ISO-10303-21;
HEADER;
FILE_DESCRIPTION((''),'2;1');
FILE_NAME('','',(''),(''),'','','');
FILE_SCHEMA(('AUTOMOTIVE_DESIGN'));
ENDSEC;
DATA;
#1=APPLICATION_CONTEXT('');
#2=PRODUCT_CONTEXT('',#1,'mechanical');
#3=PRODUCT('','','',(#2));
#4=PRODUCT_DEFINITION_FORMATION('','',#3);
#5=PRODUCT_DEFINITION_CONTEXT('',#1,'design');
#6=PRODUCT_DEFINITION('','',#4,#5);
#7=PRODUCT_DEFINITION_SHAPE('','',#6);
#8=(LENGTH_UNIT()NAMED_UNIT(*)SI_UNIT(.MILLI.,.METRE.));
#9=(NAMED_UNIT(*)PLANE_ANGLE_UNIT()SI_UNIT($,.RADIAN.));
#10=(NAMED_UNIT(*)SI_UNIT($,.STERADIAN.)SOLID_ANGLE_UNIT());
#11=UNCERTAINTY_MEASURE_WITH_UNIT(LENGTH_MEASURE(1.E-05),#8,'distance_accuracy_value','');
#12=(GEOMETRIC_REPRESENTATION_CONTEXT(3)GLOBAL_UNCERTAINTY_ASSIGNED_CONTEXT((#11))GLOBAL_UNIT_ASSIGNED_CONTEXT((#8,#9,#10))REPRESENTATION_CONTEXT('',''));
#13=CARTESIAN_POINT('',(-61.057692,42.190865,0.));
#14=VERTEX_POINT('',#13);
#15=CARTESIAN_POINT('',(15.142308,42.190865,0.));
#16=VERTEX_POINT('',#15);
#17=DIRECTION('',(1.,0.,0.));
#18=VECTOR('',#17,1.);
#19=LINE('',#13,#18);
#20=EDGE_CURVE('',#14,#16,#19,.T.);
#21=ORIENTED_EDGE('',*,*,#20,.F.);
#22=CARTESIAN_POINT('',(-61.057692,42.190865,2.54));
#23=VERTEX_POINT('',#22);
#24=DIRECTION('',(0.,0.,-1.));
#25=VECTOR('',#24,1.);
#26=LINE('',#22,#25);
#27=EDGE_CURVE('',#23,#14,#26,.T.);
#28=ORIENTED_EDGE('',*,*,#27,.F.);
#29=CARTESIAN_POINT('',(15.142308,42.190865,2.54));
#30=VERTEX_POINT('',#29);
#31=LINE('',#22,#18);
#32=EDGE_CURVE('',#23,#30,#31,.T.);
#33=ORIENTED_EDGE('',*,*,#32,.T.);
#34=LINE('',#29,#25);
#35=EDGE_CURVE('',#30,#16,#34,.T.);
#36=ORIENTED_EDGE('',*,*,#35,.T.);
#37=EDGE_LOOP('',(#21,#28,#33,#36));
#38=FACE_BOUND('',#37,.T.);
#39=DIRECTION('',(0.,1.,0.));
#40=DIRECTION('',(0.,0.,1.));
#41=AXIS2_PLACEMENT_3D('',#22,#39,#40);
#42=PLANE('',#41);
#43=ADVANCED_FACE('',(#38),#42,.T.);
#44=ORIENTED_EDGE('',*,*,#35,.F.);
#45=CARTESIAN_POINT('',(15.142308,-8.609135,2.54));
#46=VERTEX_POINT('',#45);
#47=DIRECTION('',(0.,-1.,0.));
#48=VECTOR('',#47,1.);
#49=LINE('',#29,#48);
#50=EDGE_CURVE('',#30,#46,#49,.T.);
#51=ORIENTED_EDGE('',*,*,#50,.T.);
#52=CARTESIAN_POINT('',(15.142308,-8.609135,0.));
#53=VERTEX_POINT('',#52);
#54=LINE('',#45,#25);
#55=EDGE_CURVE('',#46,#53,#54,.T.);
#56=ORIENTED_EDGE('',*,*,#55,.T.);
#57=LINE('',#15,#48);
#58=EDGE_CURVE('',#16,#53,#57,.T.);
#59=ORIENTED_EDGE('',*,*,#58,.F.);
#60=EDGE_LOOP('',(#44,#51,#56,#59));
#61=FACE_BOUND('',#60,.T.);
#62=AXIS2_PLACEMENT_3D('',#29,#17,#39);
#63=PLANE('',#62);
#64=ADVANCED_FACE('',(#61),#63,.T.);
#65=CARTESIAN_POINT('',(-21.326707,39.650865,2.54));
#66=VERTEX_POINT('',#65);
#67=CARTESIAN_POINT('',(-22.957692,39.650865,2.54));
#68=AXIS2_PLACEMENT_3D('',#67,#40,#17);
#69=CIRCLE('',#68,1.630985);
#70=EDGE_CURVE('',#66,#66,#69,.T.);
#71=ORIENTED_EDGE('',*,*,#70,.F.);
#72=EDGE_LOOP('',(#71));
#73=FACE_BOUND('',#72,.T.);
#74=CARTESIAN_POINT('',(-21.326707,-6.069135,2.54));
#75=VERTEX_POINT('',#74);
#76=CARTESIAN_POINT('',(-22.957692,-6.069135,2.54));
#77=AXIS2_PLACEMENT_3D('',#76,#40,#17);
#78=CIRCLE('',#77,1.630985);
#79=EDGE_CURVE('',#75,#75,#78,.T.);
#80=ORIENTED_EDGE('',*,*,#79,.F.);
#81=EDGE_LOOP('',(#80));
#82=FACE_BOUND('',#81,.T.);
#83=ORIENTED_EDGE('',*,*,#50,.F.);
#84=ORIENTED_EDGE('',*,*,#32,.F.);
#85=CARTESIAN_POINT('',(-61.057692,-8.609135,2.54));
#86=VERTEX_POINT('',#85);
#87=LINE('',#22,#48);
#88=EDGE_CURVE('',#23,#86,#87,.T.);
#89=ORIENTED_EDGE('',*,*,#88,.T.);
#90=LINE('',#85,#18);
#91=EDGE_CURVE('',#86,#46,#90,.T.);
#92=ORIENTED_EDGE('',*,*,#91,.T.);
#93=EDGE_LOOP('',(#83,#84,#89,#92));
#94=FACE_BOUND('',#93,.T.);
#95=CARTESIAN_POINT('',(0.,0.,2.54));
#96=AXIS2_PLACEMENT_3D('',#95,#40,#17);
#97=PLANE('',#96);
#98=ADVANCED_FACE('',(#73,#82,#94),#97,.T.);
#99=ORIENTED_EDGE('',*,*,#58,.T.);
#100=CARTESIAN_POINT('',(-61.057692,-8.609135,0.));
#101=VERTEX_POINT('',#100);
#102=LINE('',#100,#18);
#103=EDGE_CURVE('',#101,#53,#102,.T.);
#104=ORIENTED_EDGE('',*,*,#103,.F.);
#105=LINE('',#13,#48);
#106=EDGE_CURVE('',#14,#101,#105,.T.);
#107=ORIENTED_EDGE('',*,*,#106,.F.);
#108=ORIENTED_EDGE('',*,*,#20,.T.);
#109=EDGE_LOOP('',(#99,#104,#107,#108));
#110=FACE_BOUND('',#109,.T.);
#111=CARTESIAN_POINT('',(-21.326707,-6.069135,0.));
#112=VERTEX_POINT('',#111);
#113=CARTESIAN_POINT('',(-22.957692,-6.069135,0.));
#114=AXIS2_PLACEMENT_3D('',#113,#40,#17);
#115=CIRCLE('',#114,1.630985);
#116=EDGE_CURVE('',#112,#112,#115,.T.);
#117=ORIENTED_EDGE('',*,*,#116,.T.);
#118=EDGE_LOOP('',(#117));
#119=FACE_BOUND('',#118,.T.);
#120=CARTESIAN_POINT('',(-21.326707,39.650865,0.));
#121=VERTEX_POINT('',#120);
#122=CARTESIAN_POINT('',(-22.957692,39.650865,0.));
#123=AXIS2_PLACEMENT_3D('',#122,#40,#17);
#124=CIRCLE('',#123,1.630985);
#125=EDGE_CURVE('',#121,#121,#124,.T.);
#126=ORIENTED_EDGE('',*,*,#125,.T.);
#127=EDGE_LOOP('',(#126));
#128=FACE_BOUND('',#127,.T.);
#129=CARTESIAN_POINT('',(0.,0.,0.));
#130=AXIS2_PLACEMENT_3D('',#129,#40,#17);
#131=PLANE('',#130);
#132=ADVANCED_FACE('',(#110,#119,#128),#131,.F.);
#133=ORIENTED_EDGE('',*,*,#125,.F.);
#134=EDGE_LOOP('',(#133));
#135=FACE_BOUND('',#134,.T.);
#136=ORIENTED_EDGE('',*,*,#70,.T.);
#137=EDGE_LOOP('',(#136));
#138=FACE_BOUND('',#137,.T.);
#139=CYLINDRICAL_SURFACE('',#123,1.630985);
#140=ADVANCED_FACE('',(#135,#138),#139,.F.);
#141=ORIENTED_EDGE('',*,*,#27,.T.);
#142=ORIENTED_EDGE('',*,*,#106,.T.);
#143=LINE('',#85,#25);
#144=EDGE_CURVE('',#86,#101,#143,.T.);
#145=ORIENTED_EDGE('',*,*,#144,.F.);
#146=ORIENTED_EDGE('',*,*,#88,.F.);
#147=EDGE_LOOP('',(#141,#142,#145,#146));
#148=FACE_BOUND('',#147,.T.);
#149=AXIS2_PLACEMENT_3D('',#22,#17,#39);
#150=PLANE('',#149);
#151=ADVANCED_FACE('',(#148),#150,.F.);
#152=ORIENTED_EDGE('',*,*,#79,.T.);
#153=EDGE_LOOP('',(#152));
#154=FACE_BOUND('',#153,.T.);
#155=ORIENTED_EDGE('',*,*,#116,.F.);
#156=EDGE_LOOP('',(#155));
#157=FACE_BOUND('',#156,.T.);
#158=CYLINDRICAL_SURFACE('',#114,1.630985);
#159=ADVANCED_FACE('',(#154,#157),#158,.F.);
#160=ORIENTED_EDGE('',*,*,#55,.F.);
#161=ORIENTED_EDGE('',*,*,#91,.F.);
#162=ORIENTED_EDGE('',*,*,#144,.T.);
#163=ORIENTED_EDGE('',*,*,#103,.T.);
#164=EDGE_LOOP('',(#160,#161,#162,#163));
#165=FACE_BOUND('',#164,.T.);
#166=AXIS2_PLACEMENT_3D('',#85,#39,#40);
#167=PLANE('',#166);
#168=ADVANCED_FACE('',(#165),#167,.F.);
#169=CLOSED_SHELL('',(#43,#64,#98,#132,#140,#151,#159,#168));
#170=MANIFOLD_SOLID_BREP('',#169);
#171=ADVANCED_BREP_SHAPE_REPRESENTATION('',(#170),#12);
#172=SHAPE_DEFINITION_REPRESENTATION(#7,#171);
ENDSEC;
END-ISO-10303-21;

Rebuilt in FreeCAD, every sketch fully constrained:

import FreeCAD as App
import Part
import Sketcher

V = App.Vector
Q = App.Units.Quantity

doc = App.newDocument("Part")
body = doc.addObject("PartDesign::Body", "Body")

# Sketch on XY plane
sketch1 = doc.addObject("Sketcher::SketchObject", "Sketch")
body.addObject(sketch1)
sketch1.AttachmentSupport = (doc.XY_Plane, [""])
sketch1.MapMode = "FlatFace"
sketch1.addGeometry([
    Part.LineSegment(V(-61, 42, 0), V(-61, -9, 0)),
    Part.LineSegment(V(-61, -9, 0), V(15, -9, 0)),
    Part.LineSegment(V(15, -9, 0), V(15, 42, 0)),
    Part.LineSegment(V(15, 42, 0), V(-61, 42, 0)),
], False)
sketch1.addConstraint([
    Sketcher.Constraint("Coincident", 0, 2, 1, 1),
    Sketcher.Constraint("Coincident", 1, 2, 2, 1),
    Sketcher.Constraint("Coincident", 2, 2, 3, 1),
    Sketcher.Constraint("Coincident", 3, 2, 0, 1),
    Sketcher.Constraint("Vertical", 0),
    Sketcher.Constraint("Horizontal", 1),
    Sketcher.Constraint("Vertical", 2),
    Sketcher.Constraint("Horizontal", 3),
    Sketcher.Constraint("DistanceX", 1, 1, 1, 2, Q("3 in")),
    Sketcher.Constraint("DistanceY", 0, 2, 0, 1, Q("2 in")),
    Sketcher.Constraint("DistanceX", 0, 2, -1, 1, 61.057692),
    Sketcher.Constraint("DistanceY", 0, 2, -1, 1, 8.609135),
])
pad1 = doc.addObject("PartDesign::Pad", "Pad")
body.addObject(pad1)
pad1.Profile = sketch1
pad1.Length = Q("0.1 in")

# Sketch on XY plane
sketch2 = doc.addObject("Sketcher::SketchObject", "Sketch001")
body.addObject(sketch2)
sketch2.AttachmentSupport = (doc.XY_Plane, [""])
sketch2.MapMode = "FlatFace"
sketch2.AttachmentOffset = App.Placement(V(0, 0, 0.1 * 25.4), App.Rotation())
sketch2.addGeometry(Part.Circle(V(-23, 39.7, 0), V(0, 0, 1), 1.6), False)
sketch2.addConstraint([
    Sketcher.Constraint("Diameter", 0, 3.261971),
    Sketcher.Constraint("DistanceX", 0, 3, -1, 1, 22.957692),
    Sketcher.Constraint("DistanceY", -1, 1, 0, 3, 39.650865),
])
pocket1 = doc.addObject("PartDesign::Pocket", "Pocket")
body.addObject(pocket1)
pocket1.Profile = sketch2
pocket1.Type = "ThroughAll"

# Sketch on XY plane
sketch3 = doc.addObject("Sketcher::SketchObject", "Sketch002")
body.addObject(sketch3)
sketch3.AttachmentSupport = (doc.XY_Plane, [""])
sketch3.MapMode = "FlatFace"
sketch3.AttachmentOffset = App.Placement(V(0, 0, 0.1 * 25.4), App.Rotation())
sketch3.addGeometry(Part.Circle(V(-23, -6.1, 0), V(0, 0, 1), 1.6), False)
sketch3.addConstraint([
    Sketcher.Constraint("Diameter", 0, 3.261971),
    Sketcher.Constraint("DistanceX", 0, 3, -1, 1, 22.957692),
    Sketcher.Constraint("DistanceY", 0, 3, -1, 1, 6.069135),
])
pocket2 = doc.addObject("PartDesign::Pocket", "Pocket001")
body.addObject(pocket2)
pocket2.Profile = sketch3
pocket2.Type = "ThroughAll"

doc.recompute()
